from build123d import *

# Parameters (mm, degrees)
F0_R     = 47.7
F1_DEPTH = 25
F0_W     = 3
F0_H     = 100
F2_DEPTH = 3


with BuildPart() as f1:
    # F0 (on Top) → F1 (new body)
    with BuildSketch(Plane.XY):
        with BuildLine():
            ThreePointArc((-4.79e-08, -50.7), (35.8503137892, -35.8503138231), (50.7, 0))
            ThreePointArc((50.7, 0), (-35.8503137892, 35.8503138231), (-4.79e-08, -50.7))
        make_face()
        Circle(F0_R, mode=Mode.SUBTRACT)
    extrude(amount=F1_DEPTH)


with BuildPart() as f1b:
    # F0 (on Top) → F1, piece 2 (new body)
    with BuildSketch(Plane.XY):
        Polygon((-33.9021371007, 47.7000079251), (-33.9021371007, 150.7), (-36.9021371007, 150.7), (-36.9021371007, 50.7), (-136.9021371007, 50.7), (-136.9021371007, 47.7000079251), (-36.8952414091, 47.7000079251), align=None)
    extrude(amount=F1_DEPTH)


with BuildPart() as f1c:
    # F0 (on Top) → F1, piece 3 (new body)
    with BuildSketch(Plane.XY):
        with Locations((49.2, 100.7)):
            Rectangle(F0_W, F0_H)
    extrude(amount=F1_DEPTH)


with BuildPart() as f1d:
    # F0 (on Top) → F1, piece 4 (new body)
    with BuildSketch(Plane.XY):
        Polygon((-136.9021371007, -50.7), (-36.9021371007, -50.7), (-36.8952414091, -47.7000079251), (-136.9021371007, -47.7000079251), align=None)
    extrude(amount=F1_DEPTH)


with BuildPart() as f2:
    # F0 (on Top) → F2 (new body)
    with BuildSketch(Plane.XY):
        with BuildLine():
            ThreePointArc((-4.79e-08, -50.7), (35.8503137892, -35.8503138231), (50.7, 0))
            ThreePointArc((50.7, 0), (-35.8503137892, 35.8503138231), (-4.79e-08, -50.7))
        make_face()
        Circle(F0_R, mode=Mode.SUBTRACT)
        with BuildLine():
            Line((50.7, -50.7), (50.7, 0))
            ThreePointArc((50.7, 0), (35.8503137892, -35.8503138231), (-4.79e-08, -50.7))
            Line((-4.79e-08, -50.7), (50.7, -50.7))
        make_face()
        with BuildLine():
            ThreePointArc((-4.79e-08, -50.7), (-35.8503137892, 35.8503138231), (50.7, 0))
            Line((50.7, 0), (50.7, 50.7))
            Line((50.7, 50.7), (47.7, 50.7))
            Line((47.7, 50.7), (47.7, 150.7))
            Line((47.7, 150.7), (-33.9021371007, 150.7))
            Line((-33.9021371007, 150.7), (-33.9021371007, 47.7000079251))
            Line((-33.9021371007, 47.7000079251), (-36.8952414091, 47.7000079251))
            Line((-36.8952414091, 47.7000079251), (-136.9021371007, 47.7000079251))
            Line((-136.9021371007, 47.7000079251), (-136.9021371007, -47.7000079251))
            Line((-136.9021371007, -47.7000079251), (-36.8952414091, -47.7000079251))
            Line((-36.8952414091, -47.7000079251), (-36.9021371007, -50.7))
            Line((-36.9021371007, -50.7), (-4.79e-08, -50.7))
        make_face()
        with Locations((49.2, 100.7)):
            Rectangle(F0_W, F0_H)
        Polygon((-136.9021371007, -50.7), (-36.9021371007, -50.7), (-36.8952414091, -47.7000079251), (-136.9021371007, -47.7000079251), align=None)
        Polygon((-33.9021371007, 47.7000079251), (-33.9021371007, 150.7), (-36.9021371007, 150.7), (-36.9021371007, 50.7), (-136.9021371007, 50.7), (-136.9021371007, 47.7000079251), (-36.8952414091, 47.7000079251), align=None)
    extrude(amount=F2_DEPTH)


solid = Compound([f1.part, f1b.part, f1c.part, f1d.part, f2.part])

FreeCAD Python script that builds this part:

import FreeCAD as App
import Part
import Sketcher
Q = App.Units.Quantity

doc = App.newDocument("Part")
params = doc.addObject("Spreadsheet::Sheet", "Params")
for row, (alias, value) in enumerate([
    ("sketch1_diameter", "101.4 mm"),
    ("sketch1_diameter2", "95.4 mm"),
    ("pad1_length", "25 mm"),
    ("sketch2_width", "3 mm"),
    ("sketch2_width2", "100 mm"),
    ("pad2_length", "25 mm"),
    ("sketch3_width", "3 mm"),
    ("sketch3_height", "100 mm"),
    ("pad3_length", "25 mm"),
    ("sketch4_width", "100 mm"),
    ("sketch4_length", "3 mm"),
    ("pad4_length", "25 mm"),
    ("sketch5_diameter", "95.4 mm"),
    ("sketch5_width", "100 mm"),
    ("sketch5_height", "201.4 mm"),
    ("pad5_length", "3 mm"),
], start=1):
    params.set(f"A{row}", alias)
    params.set(f"B{row}", "=" + value)
    params.setAlias(f"B{row}", alias)

body = doc.addObject("PartDesign::Body", "Body")

# Sketch on XY plane
sketch1 = body.newObject("Sketcher::SketchObject", "Sketch")
sketch1.AttachmentSupport = (doc.getObject("XY_Plane"), [""])
sketch1.MapMode = "FlatFace"
sketch1.addGeometry([
    Part.Circle(App.Vector(0, 0, 0), App.Vector(0, 0, 1), 50.7),
    Part.Circle(App.Vector(0, 0, 0), App.Vector(0, 0, 1), 47.7),
], False)
sketch1.addConstraint([
    Sketcher.Constraint("Coincident", 0, 3, -1, 1),
    Sketcher.Constraint("Coincident", 1, 3, -1, 1),
    Sketcher.Constraint("Diameter", 0, Q("101.4 mm")),
    Sketcher.Constraint("Diameter", 1, Q("95.4 mm")),
])
sketch1.setExpression("Constraints[2]", "Params.sketch1_diameter")
sketch1.setExpression("Constraints[3]", "Params.sketch1_diameter2")
pad1 = body.newObject("PartDesign::Pad", "Pad")
pad1.Profile = sketch1
pad1.setExpression("Length", "Params.pad1_length")
body2 = doc.addObject("PartDesign::Body", "Body001")

# Sketch on XY plane
sketch2 = body2.newObject("Sketcher::SketchObject", "Sketch001")
sketch2.AttachmentSupport = (doc.getObject("XY_Plane001"), [""])
sketch2.MapMode = "FlatFace"
sketch2.addGeometry([
    Part.LineSegment(App.Vector(-33.902137, 47.700008, 0), App.Vector(-33.902137, 150.7, 0)),  # 0
    Part.LineSegment(App.Vector(-33.902137, 150.7, 0), App.Vector(-36.902137, 150.7, 0)),  # 1
    Part.LineSegment(App.Vector(-36.902137, 150.7, 0), App.Vector(-36.902137, 50.7, 0)),  # 2
    Part.LineSegment(App.Vector(-36.902137, 50.7, 0), App.Vector(-136.902137, 50.7, 0)),  # 3
    Part.LineSegment(App.Vector(-136.902137, 50.7, 0), App.Vector(-136.902137, 47.700008, 0)),  # 4
    Part.LineSegment(App.Vector(-136.902137, 47.700008, 0), App.Vector(-33.902137, 47.700008, 0)),  # 5
], False)
sketch2.addConstraint([
    Sketcher.Constraint("Coincident", 0, 2, 1, 1),
    Sketcher.Constraint("Coincident", 1, 2, 2, 1),
    Sketcher.Constraint("Coincident", 2, 2, 3, 1),
    Sketcher.Constraint("Coincident", 3, 2, 4, 1),
    Sketcher.Constraint("Coincident", 4, 2, 5, 1),
    Sketcher.Constraint("Coincident", 5, 2, 0, 1),
    Sketcher.Constraint("Vertical", 0),
    Sketcher.Constraint("Horizontal", 1),
    Sketcher.Constraint("Vertical", 2),
    Sketcher.Constraint("Horizontal", 3),
    Sketcher.Constraint("Vertical", 4),
    Sketcher.Constraint("Horizontal", 5),
    Sketcher.Constraint("Equal", 3, 2),
    Sketcher.Constraint("DistanceX", 1, 2, 1, 1, Q("3 mm")),
    Sketcher.Constraint("DistanceX", 3, 2, 3, 1, Q("100 mm")),
    Sketcher.Constraint("DistanceY", -1, 1, 0, 2, Q("150.7 mm")),
    Sketcher.Constraint("DistanceY", 0, 1, 0, 2, Q("102.999992 mm")),
    Sketcher.Constraint("DistanceX", 0, 2, -1, 1, Q("33.902137 mm")),
])
sketch2.setExpression("Constraints[13]", "Params.sketch2_width")
sketch2.setExpression("Constraints[14]", "Params.sketch2_width2")
pad2 = body2.newObject("PartDesign::Pad", "Pad001")
pad2.Profile = sketch2
pad2.setExpression("Length", "Params.pad2_length")
body3 = doc.addObject("PartDesign::Body", "Body002")

# Sketch on XY plane
sketch3 = body3.newObject("Sketcher::SketchObject", "Sketch002")
sketch3.AttachmentSupport = (doc.getObject("XY_Plane002"), [""])
sketch3.MapMode = "FlatFace"
sketch3.addGeometry([
    Part.LineSegment(App.Vector(47.7, 150.7, 0), App.Vector(47.7, 50.7, 0)),
    Part.LineSegment(App.Vector(47.7, 50.7, 0), App.Vector(50.7, 50.7, 0)),
    Part.LineSegment(App.Vector(50.7, 50.7, 0), App.Vector(50.7, 150.7, 0)),
    Part.LineSegment(App.Vector(50.7, 150.7, 0), App.Vector(47.7, 150.7, 0)),
], False)
sketch3.addConstraint([
    Sketcher.Constraint("Coincident", 0, 2, 1, 1),
    Sketcher.Constraint("Coincident", 1, 2, 2, 1),
    Sketcher.Constraint("Coincident", 2, 2, 3, 1),
    Sketcher.Constraint("Coincident", 3, 2, 0, 1),
    Sketcher.Constraint("Vertical", 0),
    Sketcher.Constraint("Horizontal", 1),
    Sketcher.Constraint("Vertical", 2),
    Sketcher.Constraint("Horizontal", 3),
    Sketcher.Constraint("DistanceX", 1, 1, 1, 2, Q("3 mm")),
    Sketcher.Constraint("DistanceY", 0, 2, 0, 1, Q("100 mm")),
    Sketcher.Constraint("DistanceX", -1, 1, 0, 2, Q("47.7 mm")),
    Sketcher.Constraint("DistanceY", -1, 1, 0, 2, Q("50.7 mm")),
])
sketch3.setExpression("Constraints[8]", "Params.sketch3_width")
sketch3.setExpression("Constraints[9]", "Params.sketch3_height")
pad3 = body3.newObject("PartDesign::Pad", "Pad002")
pad3.Profile = sketch3
pad3.setExpression("Length", "Params.pad3_length")
body4 = doc.addObject("PartDesign::Body", "Body003")

# Sketch on XY plane
sketch4 = body4.newObject("Sketcher::SketchObject", "Sketch003")
sketch4.AttachmentSupport = (doc.getObject("XY_Plane003"), [""])
sketch4.MapMode = "FlatFace"
sketch4.addGeometry([
    Part.LineSegment(App.Vector(-136.902137, -50.7, 0), App.Vector(-36.902137, -50.7, 0)),
    Part.LineSegment(App.Vector(-36.902137, -50.7, 0), App.Vector(-36.895241, -47.700008, 0)),
    Part.LineSegment(App.Vector(-36.895241, -47.700008, 0), App.Vector(-136.902137, -47.700008, 0)),
    Part.LineSegment(App.Vector(-136.902137, -47.700008, 0), App.Vector(-136.902137, -50.7, 0)),
], False)
sketch4.addConstraint([
    Sketcher.Constraint("Coincident", 0, 2, 1, 1),
    Sketcher.Constraint("Coincident", 1, 2, 2, 1),
    Sketcher.Constraint("Coincident", 2, 2, 3, 1),
    Sketcher.Constraint("Coincident", 3, 2, 0, 1),
    Sketcher.Constraint("Horizontal", 0),
    Sketcher.Constraint("Horizontal", 2),
    Sketcher.Constraint("Vertical", 3),
    Sketcher.Constraint("DistanceX", 0, 1, 0, 2, Q("100 mm")),
    Sketcher.Constraint("Distance", 1, Q("3 mm")),
    Sketcher.Constraint("DistanceY", 0, 2, -1, 1, Q("50.7 mm")),
    Sketcher.Constraint("DistanceX", 2, 2, 2, 1, Q("100.006896 mm")),
    Sketcher.Constraint("DistanceX", 1, 2, -1, 1, Q("36.895241 mm")),
])
sketch4.setExpression("Constraints[7]", "Params.sketch4_width")
sketch4.setExpression("Constraints[8]", "Params.sketch4_length")
pad4 = body4.newObject("PartDesign::Pad", "Pad003")
pad4.Profile = sketch4
pad4.setExpression("Length", "Params.pad4_length")
body5 = doc.addObject("PartDesign::Body", "Body004")

# Sketch on XY plane
sketch5 = body5.newObject("Sketcher::SketchObject", "Sketch004")
sketch5.AttachmentSupport = (doc.getObject("XY_Plane004"), [""])
sketch5.MapMode = "FlatFace"
sketch5.addGeometry([
    Part.LineSegment(App.Vector(50.7, -50.7, 0), App.Vector(50.7, 150.7, 0)),  # 0
    Part.LineSegment(App.Vector(50.7, 150.7, 0), App.Vector(-36.902137, 150.7, 0)),  # 1
    Part.LineSegment(App.Vector(-36.902137, 150.7, 0), App.Vector(-36.902137, 50.7, 0)),  # 2
    Part.LineSegment(App.Vector(-36.902137, 50.7, 0), App.Vector(-136.902137, 50.7, 0)),  # 3
    Part.LineSegment(App.Vector(-136.902137, 50.7, 0), App.Vector(-136.902137, -50.7, 0)),  # 4
    Part.LineSegment(App.Vector(-136.902137, -50.7, 0), App.Vector(50.7, -50.7, 0)),  # 5
    Part.Circle(App.Vector(0, 0, 0), App.Vector(0, 0, 1), 47.7),  # 6
], False)
sketch5.addConstraint([
    Sketcher.Constraint("Coincident", 0, 2, 1, 1),
    Sketcher.Constraint("Coincident", 1, 2, 2, 1),
    Sketcher.Constraint("Coincident", 2, 2, 3, 1),
    Sketcher.Constraint("Coincident", 3, 2, 4, 1),
    Sketcher.Constraint("Coincident", 4, 2, 5, 1),
    Sketcher.Constraint("Coincident", 5, 2, 0, 1),
    Sketcher.Constraint("Vertical", 0),
    Sketcher.Constraint("Horizontal", 1),
    Sketcher.Constraint("Vertical", 2),
    Sketcher.Constraint("Horizontal", 3),
    Sketcher.Constraint("Vertical", 4),
    Sketcher.Constraint("Horizontal", 5),
    Sketcher.Constraint("Coincident", 6, 3, -1, 1),
    Sketcher.Constraint("Equal", 3, 2),
    Sketcher.Constraint("Diameter", 6, Q("95.4 mm")),
    Sketcher.Constraint("DistanceX", 3, 2, 3, 1, Q("100 mm")),
    Sketcher.Constraint("DistanceY", 0, 1, 0, 2, Q("201.4 mm")),
    Sketcher.Constraint("DistanceX", -1, 1, 0, 2, Q("50.7 mm")),
    Sketcher.Constraint("DistanceY", -1, 1, 0, 2, Q("150.7 mm")),
    Sketcher.Constraint("DistanceX", 1, 2, 1, 1, Q("87.602137 mm")),
])
sketch5.setExpression("Constraints[14]", "Params.sketch5_diameter")
sketch5.setExpression("Constraints[15]", "Params.sketch5_width")
sketch5.setExpression("Constraints[16]", "Params.sketch5_height")
pad5 = body5.newObject("PartDesign::Pad", "Pad004")
pad5.Profile = sketch5
pad5.setExpression("Length", "Params.pad5_length")

doc.recompute()
